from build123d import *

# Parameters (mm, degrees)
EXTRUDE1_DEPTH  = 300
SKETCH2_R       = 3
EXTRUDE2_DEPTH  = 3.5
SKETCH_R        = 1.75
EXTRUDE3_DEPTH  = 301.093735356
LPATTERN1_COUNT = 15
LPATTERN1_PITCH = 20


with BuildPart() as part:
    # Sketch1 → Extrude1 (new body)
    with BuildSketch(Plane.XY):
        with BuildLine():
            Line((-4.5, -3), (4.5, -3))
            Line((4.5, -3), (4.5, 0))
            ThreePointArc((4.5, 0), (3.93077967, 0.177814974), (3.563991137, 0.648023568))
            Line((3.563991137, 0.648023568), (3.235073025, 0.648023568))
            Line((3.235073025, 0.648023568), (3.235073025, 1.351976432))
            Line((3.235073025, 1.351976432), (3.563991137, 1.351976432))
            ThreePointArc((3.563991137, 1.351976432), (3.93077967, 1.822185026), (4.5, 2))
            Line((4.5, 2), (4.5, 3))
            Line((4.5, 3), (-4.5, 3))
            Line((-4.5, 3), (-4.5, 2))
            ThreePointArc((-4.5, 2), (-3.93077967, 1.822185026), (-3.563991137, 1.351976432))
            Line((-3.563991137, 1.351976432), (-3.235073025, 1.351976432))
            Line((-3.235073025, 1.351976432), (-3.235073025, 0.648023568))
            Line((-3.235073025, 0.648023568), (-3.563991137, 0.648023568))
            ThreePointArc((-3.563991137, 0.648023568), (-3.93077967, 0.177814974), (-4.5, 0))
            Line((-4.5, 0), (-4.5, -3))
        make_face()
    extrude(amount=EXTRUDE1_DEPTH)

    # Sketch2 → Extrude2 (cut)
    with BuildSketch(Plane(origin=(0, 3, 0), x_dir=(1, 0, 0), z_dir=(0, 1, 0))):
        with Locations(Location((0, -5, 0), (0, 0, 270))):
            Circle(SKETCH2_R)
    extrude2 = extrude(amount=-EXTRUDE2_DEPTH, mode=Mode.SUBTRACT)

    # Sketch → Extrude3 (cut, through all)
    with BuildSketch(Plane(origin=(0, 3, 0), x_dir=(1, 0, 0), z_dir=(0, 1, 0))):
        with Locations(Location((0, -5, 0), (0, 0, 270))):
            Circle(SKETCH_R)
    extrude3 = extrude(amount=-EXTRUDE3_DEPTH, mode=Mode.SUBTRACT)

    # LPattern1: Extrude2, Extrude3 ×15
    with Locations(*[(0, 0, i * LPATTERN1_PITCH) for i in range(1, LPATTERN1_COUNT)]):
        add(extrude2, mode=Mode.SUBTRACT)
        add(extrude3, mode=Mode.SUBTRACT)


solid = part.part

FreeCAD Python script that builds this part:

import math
import FreeCAD as App
import Part
import Sketcher

V = App.Vector

doc = App.newDocument("Part")
params = doc.addObject("Spreadsheet::Sheet", "Params")
for row, (alias, value) in enumerate([
    ("sketch1_radius", "1 mm"),
    ("sketch1_width", "9 mm"),
    ("sketch1_height", "3 mm"),
    ("pad1_length", "300 mm"),
    ("sketch2_diameter", "6 mm"),
    ("pocket1_length", "3.5 mm"),
    ("sketch3_diameter", "3.5 mm"),
    ("linearpattern_pitch", "20 mm"),
], start=1):
    params.set(f"A{row}", alias)
    params.set(f"B{row}", "=" + value)
    params.setAlias(f"B{row}", alias)

body = doc.addObject("PartDesign::Body", "Body")

sketch1 = doc.addObject("Sketcher::SketchObject", "Sketch")
body.addObject(sketch1)
sketch1.AttachmentSupport = (doc.XY_Plane, [""])
sketch1.MapMode = "FlatFace"
sketch1.addGeometry(Part.LineSegment(V(-4.5, -3, 0), V(4.5, -3, 0)), False)
sketch1.addGeometry(Part.LineSegment(V(4.5, -3, 0), V(4.5, 0, 0)), False)
sketch1.addGeometry(Part.ArcOfCircle(Part.Circle(V(4.5, 1, 0), V(0, 0, 1), 1), math.radians(-159), math.radians(-90)), False)
sketch1.addGeometry(Part.LineSegment(V(3.56, 0.65, 0), V(3.24, 0.65, 0)), False)
sketch1.addGeometry(Part.LineSegment(V(3.24, 0.65, 0), V(3.24, 1.35, 0)), False)
sketch1.addGeometry(Part.LineSegment(V(3.24, 1.35, 0), V(3.56, 1.35, 0)), False)
sketch1.addGeometry(Part.ArcOfCircle(Part.Circle(V(4.5, 1, 0), V(0, 0, 1), 1), math.radians(90), math.radians(159)), False)
sketch1.addGeometry(Part.LineSegment(V(4.5, 2, 0), V(4.5, 3, 0)), False)
sketch1.addGeometry(Part.LineSegment(V(4.5, 3, 0), V(-4.5, 3, 0)), False)
sketch1.addGeometry(Part.LineSegment(V(-4.5, 3, 0), V(-4.5, 2, 0)), False)
sketch1.addGeometry(Part.ArcOfCircle(Part.Circle(V(-4.5, 1, 0), V(0, 0, 1), 1), math.radians(21), math.radians(90)), False)
sketch1.addGeometry(Part.LineSegment(V(-3.56, 1.35, 0), V(-3.24, 1.35, 0)), False)
sketch1.addGeometry(Part.LineSegment(V(-3.24, 1.35, 0), V(-3.24, 0.65, 0)), False)
sketch1.addGeometry(Part.LineSegment(V(-3.24, 0.65, 0), V(-3.56, 0.65, 0)), False)
sketch1.addGeometry(Part.ArcOfCircle(Part.Circle(V(-4.5, 1, 0), V(0, 0, 1), 1), math.radians(-90), math.radians(-21)), False)
sketch1.addGeometry(Part.LineSegment(V(-4.5, 0, 0), V(-4.5, -3, 0)), False)
sketch1.addConstraint(Sketcher.Constraint("Coincident", 0, 2, 1, 1))
sketch1.addConstraint(Sketcher.Constraint("Coincident", 1, 2, 2, 2))
sketch1.addConstraint(Sketcher.Constraint("Coincident", 2, 1, 3, 1))
sketch1.addConstraint(Sketcher.Constraint("Coincident", 3, 2, 4, 1))
sketch1.addConstraint(Sketcher.Constraint("Coincident", 4, 2, 5, 1))
sketch1.addConstraint(Sketcher.Constraint("Coincident", 5, 2, 6, 2))
sketch1.addConstraint(Sketcher.Constraint("Coincident", 6, 1, 7, 1))
sketch1.addConstraint(Sketcher.Constraint("Coincident", 7, 2, 8, 1))
sketch1.addConstraint(Sketcher.Constraint("Coincident", 8, 2, 9, 1))
sketch1.addConstraint(Sketcher.Constraint("Coincident", 9, 2, 10, 2))
sketch1.addConstraint(Sketcher.Constraint("Coincident", 10, 1, 11, 1))
sketch1.addConstraint(Sketcher.Constraint("Coincident", 11, 2, 12, 1))
sketch1.addConstraint(Sketcher.Constraint("Coincident", 12, 2, 13, 1))
sketch1.addConstraint(Sketcher.Constraint("Coincident", 13, 2, 14, 2))
sketch1.addConstraint(Sketcher.Constraint("Coincident", 14, 1, 15, 1))
sketch1.addConstraint(Sketcher.Constraint("Coincident", 15, 2, 0, 1))
sketch1.addConstraint(Sketcher.Constraint("Horizontal", 0))
sketch1.addConstraint(Sketcher.Constraint("Vertical", 1))
sketch1.addConstraint(Sketcher.Constraint("Horizontal", 3))
sketch1.addConstraint(Sketcher.Constraint("Vertical", 4))
sketch1.addConstraint(Sketcher.Constraint("Horizontal", 5))
sketch1.addConstraint(Sketcher.Constraint("Vertical", 7))
sketch1.addConstraint(Sketcher.Constraint("Horizontal", 8))
sketch1.addConstraint(Sketcher.Constraint("Vertical", 9))
sketch1.addConstraint(Sketcher.Constraint("Horizontal", 11))
sketch1.addConstraint(Sketcher.Constraint("Vertical", 12))
sketch1.addConstraint(Sketcher.Constraint("Horizontal", 13))
sketch1.addConstraint(Sketcher.Constraint("Vertical", 15))
sketch1.addConstraint(Sketcher.Constraint("Coincident", 6, 3, 2, 3))
sketch1.addConstraint(Sketcher.Constraint("Coincident", 14, 3, 10, 3))
sketch1.addConstraint(Sketcher.Constraint("Equal", 2, 6))
sketch1.addConstraint(Sketcher.Constraint("Equal", 6, 10))
sketch1.addConstraint(Sketcher.Constraint("Equal", 10, 14))
sketch1.addConstraint(Sketcher.Constraint("Symmetric", 0, 2, 8, 2, -1, 1))
sketch1.addConstraint(Sketcher.Constraint("Symmetric", 1, 2, 14, 1, -1, 1))
sketch1.addConstraint(Sketcher.Constraint("Symmetric", 2, 3, 10, 3, -2))
sketch1.addConstraint(Sketcher.Constraint("Symmetric", 4, 2, 11, 2, -2))
sketch1.addConstraint(Sketcher.Constraint("Horizontal", 3, 2, 12, 2))
sketch1.addConstraint(Sketcher.Constraint("Vertical", 6, 3, 0, 2))
sketch1.addConstraint(Sketcher.Constraint("Vertical", 2, 1, 5, 2))
sketch1.addConstraint(Sketcher.Constraint("Vertical", 1, 2, 6, 1))
sketch1.addConstraint(Sketcher.Constraint("Radius", 2, 1.0))
sketch1.addConstraint(Sketcher.Constraint("DistanceX", 0, 1, 0, 2, 9.0))
sketch1.addConstraint(Sketcher.Constraint("DistanceY", 1, 1, 1, 2, 3.0))
sketch1.addConstraint(Sketcher.Constraint("DistanceX", 3, 2, 3, 1, 0.328918))
sketch1.addConstraint(Sketcher.Constraint("DistanceY", 4, 1, 4, 2, 0.703953))
sketch1.setExpression("Constraints[41]", "Params.sketch1_radius")
sketch1.setExpression("Constraints[42]", "Params.sketch1_width")
sketch1.setExpression("Constraints[43]", "Params.sketch1_height")
pad1 = doc.addObject("PartDesign::Pad", "Pad")
body.addObject(pad1)
pad1.Profile = sketch1
pad1.setExpression("Length", "Params.pad1_length")

sketch2 = doc.addObject("Sketcher::SketchObject", "Sketch001")
body.addObject(sketch2)
sketch2.AttachmentSupport = (doc.XZ_Plane, [""])
sketch2.MapMode = "FlatFace"
sketch2.AttachmentOffset = App.Placement(V(0, 0, -3), App.Rotation())
sketch2.addGeometry(Part.Circle(V(0, 5, 0), V(0, 0, 1), 3), False)
sketch2.addConstraint(Sketcher.Constraint("PointOnObject", 0, 3, -2))
sketch2.addConstraint(Sketcher.Constraint("Diameter", 0, 6.0))
sketch2.addConstraint(Sketcher.Constraint("DistanceY", -1, 1, 0, 3, 5.0))
sketch2.setExpression("Constraints[1]", "Params.sketch2_diameter")
pocket1 = doc.addObject("PartDesign::Pocket", "Pocket")
body.addObject(pocket1)
pocket1.Profile = sketch2
pocket1.setExpression("Length", "Params.pocket1_length")
pocket1.Reversed = True

sketch3 = doc.addObject("Sketcher::SketchObject", "Sketch002")
body.addObject(sketch3)
sketch3.AttachmentSupport = (doc.XZ_Plane, [""])
sketch3.MapMode = "FlatFace"
sketch3.AttachmentOffset = App.Placement(V(0, 0, -3), App.Rotation())
sketch3.addGeometry(Part.Circle(V(0, 5, 0), V(0, 0, 1), 1.8), False)
sketch3.addConstraint(Sketcher.Constraint("PointOnObject", 0, 3, -2))
sketch3.addConstraint(Sketcher.Constraint("Diameter", 0, 3.5))
sketch3.addConstraint(Sketcher.Constraint("DistanceY", -1, 1, 0, 3, 5.0))
sketch3.setExpression("Constraints[1]", "Params.sketch3_diameter")
pocket2 = doc.addObject("PartDesign::Pocket", "Pocket001")
body.addObject(pocket2)
pocket2.Profile = sketch3
pocket2.Type = "ThroughAll"
pocket2.Reversed = True
doc.recompute()

linearpattern = doc.addObject("PartDesign::LinearPattern", "LinearPattern")
body.addObject(linearpattern)
linearpattern.Originals = [pocket1, pocket2]
linearpattern.Direction = (doc.Z_Axis, [""])
linearpattern.Mode = "offset"
linearpattern.setExpression("Offset", "Params.linearpattern_pitch")
linearpattern.Occurrences = 15
body.Tip = linearpattern

doc.recompute()
